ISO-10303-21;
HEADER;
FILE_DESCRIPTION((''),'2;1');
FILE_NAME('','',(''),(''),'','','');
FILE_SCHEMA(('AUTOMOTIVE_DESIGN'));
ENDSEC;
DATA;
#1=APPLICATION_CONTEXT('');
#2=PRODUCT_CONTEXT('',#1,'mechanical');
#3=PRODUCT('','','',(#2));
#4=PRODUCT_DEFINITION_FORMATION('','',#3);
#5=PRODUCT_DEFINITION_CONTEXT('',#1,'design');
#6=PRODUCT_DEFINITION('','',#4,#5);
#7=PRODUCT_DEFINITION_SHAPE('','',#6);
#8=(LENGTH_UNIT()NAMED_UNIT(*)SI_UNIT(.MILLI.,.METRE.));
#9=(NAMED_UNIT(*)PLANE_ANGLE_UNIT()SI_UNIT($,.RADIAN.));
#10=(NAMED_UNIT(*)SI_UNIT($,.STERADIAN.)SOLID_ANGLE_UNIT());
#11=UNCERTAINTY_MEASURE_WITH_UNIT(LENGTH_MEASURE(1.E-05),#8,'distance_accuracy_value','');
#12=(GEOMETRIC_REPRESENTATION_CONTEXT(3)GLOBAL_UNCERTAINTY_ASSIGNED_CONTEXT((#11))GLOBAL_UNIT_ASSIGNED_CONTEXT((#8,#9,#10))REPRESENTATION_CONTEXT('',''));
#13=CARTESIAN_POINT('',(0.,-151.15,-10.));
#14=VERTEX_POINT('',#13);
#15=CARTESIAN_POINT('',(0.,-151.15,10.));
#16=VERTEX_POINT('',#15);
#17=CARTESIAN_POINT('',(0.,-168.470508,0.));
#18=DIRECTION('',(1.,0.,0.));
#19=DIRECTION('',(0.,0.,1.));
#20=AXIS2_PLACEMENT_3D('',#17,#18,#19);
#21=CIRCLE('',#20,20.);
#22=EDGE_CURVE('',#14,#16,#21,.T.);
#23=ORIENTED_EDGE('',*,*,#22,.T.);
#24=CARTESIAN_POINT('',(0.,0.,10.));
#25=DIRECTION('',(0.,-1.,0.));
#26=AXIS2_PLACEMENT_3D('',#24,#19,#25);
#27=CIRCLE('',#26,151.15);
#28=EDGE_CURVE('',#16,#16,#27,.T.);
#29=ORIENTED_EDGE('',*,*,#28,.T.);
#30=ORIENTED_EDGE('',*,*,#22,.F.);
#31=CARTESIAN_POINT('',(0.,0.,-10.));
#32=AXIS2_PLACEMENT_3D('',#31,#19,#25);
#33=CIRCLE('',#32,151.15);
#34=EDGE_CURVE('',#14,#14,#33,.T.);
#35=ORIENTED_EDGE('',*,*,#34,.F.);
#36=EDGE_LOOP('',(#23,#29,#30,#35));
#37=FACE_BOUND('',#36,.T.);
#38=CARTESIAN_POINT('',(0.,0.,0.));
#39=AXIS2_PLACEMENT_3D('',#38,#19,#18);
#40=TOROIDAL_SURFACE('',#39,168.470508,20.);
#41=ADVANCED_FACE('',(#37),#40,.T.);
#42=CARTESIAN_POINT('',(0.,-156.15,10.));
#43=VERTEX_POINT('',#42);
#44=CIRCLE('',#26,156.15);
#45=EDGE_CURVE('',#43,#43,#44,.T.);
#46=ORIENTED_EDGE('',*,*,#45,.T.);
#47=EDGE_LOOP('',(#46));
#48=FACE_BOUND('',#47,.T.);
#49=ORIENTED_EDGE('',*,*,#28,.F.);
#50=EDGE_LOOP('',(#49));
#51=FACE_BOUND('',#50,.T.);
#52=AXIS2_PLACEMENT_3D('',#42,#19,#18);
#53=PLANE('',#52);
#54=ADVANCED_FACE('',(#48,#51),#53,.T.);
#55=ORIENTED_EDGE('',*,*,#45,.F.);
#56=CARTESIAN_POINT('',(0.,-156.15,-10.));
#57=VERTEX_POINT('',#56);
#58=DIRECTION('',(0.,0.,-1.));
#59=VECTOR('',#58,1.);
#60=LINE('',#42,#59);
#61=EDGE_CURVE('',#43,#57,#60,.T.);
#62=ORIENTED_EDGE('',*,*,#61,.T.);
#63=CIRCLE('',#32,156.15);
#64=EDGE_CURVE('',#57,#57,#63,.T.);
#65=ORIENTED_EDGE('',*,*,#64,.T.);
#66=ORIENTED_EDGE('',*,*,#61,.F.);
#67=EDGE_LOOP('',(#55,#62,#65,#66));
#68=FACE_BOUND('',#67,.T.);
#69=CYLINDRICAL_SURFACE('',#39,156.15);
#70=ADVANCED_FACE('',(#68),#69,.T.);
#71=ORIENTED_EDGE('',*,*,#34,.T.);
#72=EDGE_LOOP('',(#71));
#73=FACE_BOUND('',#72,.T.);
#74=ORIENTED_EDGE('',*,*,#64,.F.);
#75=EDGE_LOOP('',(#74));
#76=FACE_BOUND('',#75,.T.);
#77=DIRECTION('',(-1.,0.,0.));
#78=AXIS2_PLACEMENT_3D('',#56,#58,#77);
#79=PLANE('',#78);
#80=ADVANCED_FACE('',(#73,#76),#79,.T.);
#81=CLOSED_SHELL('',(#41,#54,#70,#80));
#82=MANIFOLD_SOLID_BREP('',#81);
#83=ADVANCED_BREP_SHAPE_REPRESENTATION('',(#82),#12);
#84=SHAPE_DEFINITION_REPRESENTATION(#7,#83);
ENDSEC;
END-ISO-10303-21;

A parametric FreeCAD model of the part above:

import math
import FreeCAD as App
import Part
import Sketcher

V = App.Vector
Q = App.Units.Quantity

doc = App.newDocument("Part")
body = doc.addObject("PartDesign::Body", "Body")

# Sketch on YZ plane
sketch1 = body.newObject("Sketcher::SketchObject", "Sketch")
sketch1.AttachmentSupport = (doc.getObject("YZ_Plane"), [""])
sketch1.MapMode = "FlatFace"
sketch1.addGeometry([
    Part.LineSegment(V(-156, 10, 0), V(-156, -10, 0)),
    Part.LineSegment(V(-156, -10, 0), V(-151, -10, 0)),
    Part.ArcOfCircle(Part.Circle(V(-168, 0, 0), V(0, 0, 1), 20), math.radians(-30), math.radians(30)),
    Part.LineSegment(V(-151, 10, 0), V(-156, 10, 0)),
], False)
sketch1.addConstraint([
    Sketcher.Constraint("Coincident", 0, 2, 1, 1),
    Sketcher.Constraint("Coincident", 1, 2, 2, 1),
    Sketcher.Constraint("Coincident", 2, 2, 3, 1),
    Sketcher.Constraint("Coincident", 3, 2, 0, 1),
    Sketcher.Constraint("Vertical", 0),
    Sketcher.Constraint("Horizontal", 1),
    Sketcher.Constraint("Horizontal", 3),
    Sketcher.Constraint("Symmetric", 1, 2, 2, 2, -1),
    Sketcher.Constraint("Radius", 2, Q("20 mm")),
    Sketcher.Constraint("DistanceX", 1, 1, 1, 2, Q("5 mm")),
    Sketcher.Constraint("DistanceY", 0, 2, 0, 1, Q("20 mm")),
    Sketcher.Constraint("DistanceX", 0, 2, -1, 1, Q("156.15 mm")),
])

# Sketch on XY plane
sketch2 = body.newObject("Sketcher::SketchObject", "Sketch001")
sketch2.AttachmentSupport = (doc.getObject("XY_Plane"), [""])
sketch2.MapMode = "FlatFace"
sketch2.addGeometry(Part.Circle(V(0, 0, 0), V(0, 0, 1), 156), False)
sketch2.addConstraint([
    Sketcher.Constraint("Coincident", 0, 3, -1, 1),
    Sketcher.Constraint("Diameter", 0, Q("312.3 mm")),
])
doc.recompute()

additivepipe = body.newObject("PartDesign::AdditivePipe", "AdditivePipe")
additivepipe.Profile = sketch1
additivepipe.Spine = (sketch2, ["Edge1"])

doc.recompute()
